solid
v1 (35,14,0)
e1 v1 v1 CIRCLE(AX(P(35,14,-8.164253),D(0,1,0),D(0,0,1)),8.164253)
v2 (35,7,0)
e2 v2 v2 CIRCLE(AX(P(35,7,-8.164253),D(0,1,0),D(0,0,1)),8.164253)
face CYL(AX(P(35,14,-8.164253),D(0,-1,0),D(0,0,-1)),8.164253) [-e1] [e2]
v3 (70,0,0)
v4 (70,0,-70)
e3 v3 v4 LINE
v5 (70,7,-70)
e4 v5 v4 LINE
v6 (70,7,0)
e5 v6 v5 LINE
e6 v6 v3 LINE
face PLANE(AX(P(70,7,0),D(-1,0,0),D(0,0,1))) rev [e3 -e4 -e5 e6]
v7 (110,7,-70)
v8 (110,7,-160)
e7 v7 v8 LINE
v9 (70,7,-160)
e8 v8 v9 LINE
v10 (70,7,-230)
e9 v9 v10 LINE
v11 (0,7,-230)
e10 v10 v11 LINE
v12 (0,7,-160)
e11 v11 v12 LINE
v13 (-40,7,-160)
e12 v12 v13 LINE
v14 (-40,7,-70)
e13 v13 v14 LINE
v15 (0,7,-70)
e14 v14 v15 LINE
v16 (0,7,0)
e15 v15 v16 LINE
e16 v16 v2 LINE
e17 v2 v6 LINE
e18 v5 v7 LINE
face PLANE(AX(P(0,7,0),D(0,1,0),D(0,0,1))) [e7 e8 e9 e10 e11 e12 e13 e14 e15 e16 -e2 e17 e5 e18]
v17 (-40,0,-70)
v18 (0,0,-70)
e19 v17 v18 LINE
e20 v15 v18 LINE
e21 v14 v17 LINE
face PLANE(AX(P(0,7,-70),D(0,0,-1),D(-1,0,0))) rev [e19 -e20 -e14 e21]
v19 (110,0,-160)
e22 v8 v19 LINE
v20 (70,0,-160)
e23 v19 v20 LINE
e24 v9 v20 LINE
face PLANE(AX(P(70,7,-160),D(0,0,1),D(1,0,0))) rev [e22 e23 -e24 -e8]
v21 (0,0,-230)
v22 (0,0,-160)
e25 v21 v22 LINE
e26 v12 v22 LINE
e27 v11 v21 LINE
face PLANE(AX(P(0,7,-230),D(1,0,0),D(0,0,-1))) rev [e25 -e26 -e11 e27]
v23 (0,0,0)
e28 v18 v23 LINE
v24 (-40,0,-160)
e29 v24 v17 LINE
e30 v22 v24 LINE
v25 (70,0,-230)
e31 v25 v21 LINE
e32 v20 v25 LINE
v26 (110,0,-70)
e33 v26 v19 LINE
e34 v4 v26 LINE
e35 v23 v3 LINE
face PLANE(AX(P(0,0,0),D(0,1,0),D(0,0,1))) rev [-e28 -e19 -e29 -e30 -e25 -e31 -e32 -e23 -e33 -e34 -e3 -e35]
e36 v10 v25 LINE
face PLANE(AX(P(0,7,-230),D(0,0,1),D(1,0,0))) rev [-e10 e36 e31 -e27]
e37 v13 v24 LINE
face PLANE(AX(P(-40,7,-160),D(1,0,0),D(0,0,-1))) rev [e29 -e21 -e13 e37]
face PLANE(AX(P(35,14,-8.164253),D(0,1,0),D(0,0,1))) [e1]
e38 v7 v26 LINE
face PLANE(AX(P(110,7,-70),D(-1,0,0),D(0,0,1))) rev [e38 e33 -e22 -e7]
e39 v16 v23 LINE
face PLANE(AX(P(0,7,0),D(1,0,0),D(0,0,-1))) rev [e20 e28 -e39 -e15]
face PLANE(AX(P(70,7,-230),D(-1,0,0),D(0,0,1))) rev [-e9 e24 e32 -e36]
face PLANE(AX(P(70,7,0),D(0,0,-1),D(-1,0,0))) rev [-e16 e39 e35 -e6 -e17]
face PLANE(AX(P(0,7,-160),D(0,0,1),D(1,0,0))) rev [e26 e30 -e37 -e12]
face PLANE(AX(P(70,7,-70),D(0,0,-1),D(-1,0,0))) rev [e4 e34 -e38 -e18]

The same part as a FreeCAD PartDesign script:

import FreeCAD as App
import Part
import Sketcher

doc = App.newDocument("Part")
body = doc.addObject("PartDesign::Body", "Body")

# Sketch on XZ plane
sketch1 = body.newObject("Sketcher::SketchObject", "Sketch")
sketch1.AttachmentSupport = (doc.getObject("XZ_Plane"), [""])
sketch1.MapMode = "FlatFace"
sketch1.addGeometry(Part.LineSegment(App.Vector(0, -230, 0), App.Vector(0, -160, 0)), False)
sketch1.addGeometry(Part.LineSegment(App.Vector(0, -160, 0), App.Vector(-40, -160, 0)), False)
sketch1.addGeometry(Part.LineSegment(App.Vector(-40, -160, 0), App.Vector(-40, -70, 0)), False)
sketch1.addGeometry(Part.LineSegment(App.Vector(-40, -70, 0), App.Vector(0, -70, 0)), False)
sketch1.addGeometry(Part.LineSegment(App.Vector(0, -70, 0), App.Vector(0, 0, 0)), False)
sketch1.addGeometry(Part.LineSegment(App.Vector(0, 0, 0), App.Vector(70, 0, 0)), False)
sketch1.addGeometry(Part.LineSegment(App.Vector(70, 0, 0), App.Vector(70, -70, 0)), False)
sketch1.addGeometry(Part.LineSegment(App.Vector(70, -70, 0), App.Vector(110, -70, 0)), False)
sketch1.addGeometry(Part.LineSegment(App.Vector(110, -70, 0), App.Vector(110, -160, 0)), False)
sketch1.addGeometry(Part.LineSegment(App.Vector(110, -160, 0), App.Vector(70, -160, 0)), False)
sketch1.addGeometry(Part.LineSegment(App.Vector(70, -160, 0), App.Vector(70, -230, 0)), False)
sketch1.addGeometry(Part.LineSegment(App.Vector(70, -230, 0), App.Vector(0, -230, 0)), False)
sketch1.addConstraint(Sketcher.Constraint("Coincident", 0, 2, 1, 1))
sketch1.addConstraint(Sketcher.Constraint("Coincident", 1, 2, 2, 1))
sketch1.addConstraint(Sketcher.Constraint("Coincident", 2, 2, 3, 1))
sketch1.addConstraint(Sketcher.Constraint("Coincident", 3, 2, 4, 1))
sketch1.addConstraint(Sketcher.Constraint("Coincident", 4, 2, 5, 1))
sketch1.addConstraint(Sketcher.Constraint("Coincident", 5, 2, 6, 1))
sketch1.addConstraint(Sketcher.Constraint("Coincident", 6, 2, 7, 1))
sketch1.addConstraint(Sketcher.Constraint("Coincident", 7, 2, 8, 1))
sketch1.addConstraint(Sketcher.Constraint("Coincident", 8, 2, 9, 1))
sketch1.addConstraint(Sketcher.Constraint("Coincident", 9, 2, 10, 1))
sketch1.addConstraint(Sketcher.Constraint("Coincident", 10, 2, 11, 1))
sketch1.addConstraint(Sketcher.Constraint("Coincident", 11, 2, 0, 1))
sketch1.addConstraint(Sketcher.Constraint("Vertical", 0))
sketch1.addConstraint(Sketcher.Constraint("Horizontal", 1))
sketch1.addConstraint(Sketcher.Constraint("Vertical", 2))
sketch1.addConstraint(Sketcher.Constraint("Horizontal", 3))
sketch1.addConstraint(Sketcher.Constraint("Vertical", 4))
sketch1.addConstraint(Sketcher.Constraint("Horizontal", 5))
sketch1.addConstraint(Sketcher.Constraint("Vertical", 6))
sketch1.addConstraint(Sketcher.Constraint("Horizontal", 7))
sketch1.addConstraint(Sketcher.Constraint("Vertical", 8))
sketch1.addConstraint(Sketcher.Constraint("Horizontal", 9))
sketch1.addConstraint(Sketcher.Constraint("Vertical", 10))
sketch1.addConstraint(Sketcher.Constraint("Horizontal", 11))
sketch1.addConstraint(Sketcher.Constraint("Coincident", 4, 2, -1, 1))
sketch1.addConstraint(Sketcher.Constraint("PointOnObject", 0, 2, -2))
sketch1.addConstraint(Sketcher.Constraint("Horizontal", 3, 2, 6, 2))
sketch1.addConstraint(Sketcher.Constraint("Horizontal", 1, 2, 8, 2))
sketch1.addConstraint(Sketcher.Constraint("Vertical", 6, 2, 9, 2))
sketch1.addConstraint(Sketcher.Constraint("Equal", 3, 7))
sketch1.addConstraint(Sketcher.Constraint("Equal", 11, 0))
sketch1.addConstraint(Sketcher.Constraint("Equal", 0, 4))
sketch1.addConstraint(Sketcher.Constraint("DistanceX", 1, 2, 1, 1, 40.0))
sketch1.addConstraint(Sketcher.Constraint("DistanceX", 5, 1, 5, 2, 70.0))
sketch1.addConstraint(Sketcher.Constraint("DistanceY", 2, 1, 2, 2, 90.0))
pad1 = body.newObject("PartDesign::Pad", "Pad")
pad1.Profile = sketch1
pad1.Length = 7
pad1.Reversed = True

# Sketch on XZ plane
sketch2 = body.newObject("Sketcher::SketchObject", "Sketch001")
sketch2.AttachmentSupport = (doc.getObject("XZ_Plane"), [""])
sketch2.MapMode = "FlatFace"
sketch2.AttachmentOffset = App.Placement(App.Vector(0, 0, -7), App.Rotation())
sketch2.addGeometry(Part.Circle(App.Vector(35, -8, 0), App.Vector(0, 0, 1), 8), False)
sketch2.addConstraint(Sketcher.Constraint("DistanceX", -1, 1, 0, 3, 35.0))
sketch2.addConstraint(Sketcher.Constraint("Diameter", 0, 16.328507))
sketch2.addConstraint(Sketcher.Constraint("DistanceY", 0, 3, -1, 1, 8.164253))
pad2 = body.newObject("PartDesign::Pad", "Pad001")
pad2.Profile = sketch2
pad2.Length = 7
pad2.Reversed = True

doc.recompute()
